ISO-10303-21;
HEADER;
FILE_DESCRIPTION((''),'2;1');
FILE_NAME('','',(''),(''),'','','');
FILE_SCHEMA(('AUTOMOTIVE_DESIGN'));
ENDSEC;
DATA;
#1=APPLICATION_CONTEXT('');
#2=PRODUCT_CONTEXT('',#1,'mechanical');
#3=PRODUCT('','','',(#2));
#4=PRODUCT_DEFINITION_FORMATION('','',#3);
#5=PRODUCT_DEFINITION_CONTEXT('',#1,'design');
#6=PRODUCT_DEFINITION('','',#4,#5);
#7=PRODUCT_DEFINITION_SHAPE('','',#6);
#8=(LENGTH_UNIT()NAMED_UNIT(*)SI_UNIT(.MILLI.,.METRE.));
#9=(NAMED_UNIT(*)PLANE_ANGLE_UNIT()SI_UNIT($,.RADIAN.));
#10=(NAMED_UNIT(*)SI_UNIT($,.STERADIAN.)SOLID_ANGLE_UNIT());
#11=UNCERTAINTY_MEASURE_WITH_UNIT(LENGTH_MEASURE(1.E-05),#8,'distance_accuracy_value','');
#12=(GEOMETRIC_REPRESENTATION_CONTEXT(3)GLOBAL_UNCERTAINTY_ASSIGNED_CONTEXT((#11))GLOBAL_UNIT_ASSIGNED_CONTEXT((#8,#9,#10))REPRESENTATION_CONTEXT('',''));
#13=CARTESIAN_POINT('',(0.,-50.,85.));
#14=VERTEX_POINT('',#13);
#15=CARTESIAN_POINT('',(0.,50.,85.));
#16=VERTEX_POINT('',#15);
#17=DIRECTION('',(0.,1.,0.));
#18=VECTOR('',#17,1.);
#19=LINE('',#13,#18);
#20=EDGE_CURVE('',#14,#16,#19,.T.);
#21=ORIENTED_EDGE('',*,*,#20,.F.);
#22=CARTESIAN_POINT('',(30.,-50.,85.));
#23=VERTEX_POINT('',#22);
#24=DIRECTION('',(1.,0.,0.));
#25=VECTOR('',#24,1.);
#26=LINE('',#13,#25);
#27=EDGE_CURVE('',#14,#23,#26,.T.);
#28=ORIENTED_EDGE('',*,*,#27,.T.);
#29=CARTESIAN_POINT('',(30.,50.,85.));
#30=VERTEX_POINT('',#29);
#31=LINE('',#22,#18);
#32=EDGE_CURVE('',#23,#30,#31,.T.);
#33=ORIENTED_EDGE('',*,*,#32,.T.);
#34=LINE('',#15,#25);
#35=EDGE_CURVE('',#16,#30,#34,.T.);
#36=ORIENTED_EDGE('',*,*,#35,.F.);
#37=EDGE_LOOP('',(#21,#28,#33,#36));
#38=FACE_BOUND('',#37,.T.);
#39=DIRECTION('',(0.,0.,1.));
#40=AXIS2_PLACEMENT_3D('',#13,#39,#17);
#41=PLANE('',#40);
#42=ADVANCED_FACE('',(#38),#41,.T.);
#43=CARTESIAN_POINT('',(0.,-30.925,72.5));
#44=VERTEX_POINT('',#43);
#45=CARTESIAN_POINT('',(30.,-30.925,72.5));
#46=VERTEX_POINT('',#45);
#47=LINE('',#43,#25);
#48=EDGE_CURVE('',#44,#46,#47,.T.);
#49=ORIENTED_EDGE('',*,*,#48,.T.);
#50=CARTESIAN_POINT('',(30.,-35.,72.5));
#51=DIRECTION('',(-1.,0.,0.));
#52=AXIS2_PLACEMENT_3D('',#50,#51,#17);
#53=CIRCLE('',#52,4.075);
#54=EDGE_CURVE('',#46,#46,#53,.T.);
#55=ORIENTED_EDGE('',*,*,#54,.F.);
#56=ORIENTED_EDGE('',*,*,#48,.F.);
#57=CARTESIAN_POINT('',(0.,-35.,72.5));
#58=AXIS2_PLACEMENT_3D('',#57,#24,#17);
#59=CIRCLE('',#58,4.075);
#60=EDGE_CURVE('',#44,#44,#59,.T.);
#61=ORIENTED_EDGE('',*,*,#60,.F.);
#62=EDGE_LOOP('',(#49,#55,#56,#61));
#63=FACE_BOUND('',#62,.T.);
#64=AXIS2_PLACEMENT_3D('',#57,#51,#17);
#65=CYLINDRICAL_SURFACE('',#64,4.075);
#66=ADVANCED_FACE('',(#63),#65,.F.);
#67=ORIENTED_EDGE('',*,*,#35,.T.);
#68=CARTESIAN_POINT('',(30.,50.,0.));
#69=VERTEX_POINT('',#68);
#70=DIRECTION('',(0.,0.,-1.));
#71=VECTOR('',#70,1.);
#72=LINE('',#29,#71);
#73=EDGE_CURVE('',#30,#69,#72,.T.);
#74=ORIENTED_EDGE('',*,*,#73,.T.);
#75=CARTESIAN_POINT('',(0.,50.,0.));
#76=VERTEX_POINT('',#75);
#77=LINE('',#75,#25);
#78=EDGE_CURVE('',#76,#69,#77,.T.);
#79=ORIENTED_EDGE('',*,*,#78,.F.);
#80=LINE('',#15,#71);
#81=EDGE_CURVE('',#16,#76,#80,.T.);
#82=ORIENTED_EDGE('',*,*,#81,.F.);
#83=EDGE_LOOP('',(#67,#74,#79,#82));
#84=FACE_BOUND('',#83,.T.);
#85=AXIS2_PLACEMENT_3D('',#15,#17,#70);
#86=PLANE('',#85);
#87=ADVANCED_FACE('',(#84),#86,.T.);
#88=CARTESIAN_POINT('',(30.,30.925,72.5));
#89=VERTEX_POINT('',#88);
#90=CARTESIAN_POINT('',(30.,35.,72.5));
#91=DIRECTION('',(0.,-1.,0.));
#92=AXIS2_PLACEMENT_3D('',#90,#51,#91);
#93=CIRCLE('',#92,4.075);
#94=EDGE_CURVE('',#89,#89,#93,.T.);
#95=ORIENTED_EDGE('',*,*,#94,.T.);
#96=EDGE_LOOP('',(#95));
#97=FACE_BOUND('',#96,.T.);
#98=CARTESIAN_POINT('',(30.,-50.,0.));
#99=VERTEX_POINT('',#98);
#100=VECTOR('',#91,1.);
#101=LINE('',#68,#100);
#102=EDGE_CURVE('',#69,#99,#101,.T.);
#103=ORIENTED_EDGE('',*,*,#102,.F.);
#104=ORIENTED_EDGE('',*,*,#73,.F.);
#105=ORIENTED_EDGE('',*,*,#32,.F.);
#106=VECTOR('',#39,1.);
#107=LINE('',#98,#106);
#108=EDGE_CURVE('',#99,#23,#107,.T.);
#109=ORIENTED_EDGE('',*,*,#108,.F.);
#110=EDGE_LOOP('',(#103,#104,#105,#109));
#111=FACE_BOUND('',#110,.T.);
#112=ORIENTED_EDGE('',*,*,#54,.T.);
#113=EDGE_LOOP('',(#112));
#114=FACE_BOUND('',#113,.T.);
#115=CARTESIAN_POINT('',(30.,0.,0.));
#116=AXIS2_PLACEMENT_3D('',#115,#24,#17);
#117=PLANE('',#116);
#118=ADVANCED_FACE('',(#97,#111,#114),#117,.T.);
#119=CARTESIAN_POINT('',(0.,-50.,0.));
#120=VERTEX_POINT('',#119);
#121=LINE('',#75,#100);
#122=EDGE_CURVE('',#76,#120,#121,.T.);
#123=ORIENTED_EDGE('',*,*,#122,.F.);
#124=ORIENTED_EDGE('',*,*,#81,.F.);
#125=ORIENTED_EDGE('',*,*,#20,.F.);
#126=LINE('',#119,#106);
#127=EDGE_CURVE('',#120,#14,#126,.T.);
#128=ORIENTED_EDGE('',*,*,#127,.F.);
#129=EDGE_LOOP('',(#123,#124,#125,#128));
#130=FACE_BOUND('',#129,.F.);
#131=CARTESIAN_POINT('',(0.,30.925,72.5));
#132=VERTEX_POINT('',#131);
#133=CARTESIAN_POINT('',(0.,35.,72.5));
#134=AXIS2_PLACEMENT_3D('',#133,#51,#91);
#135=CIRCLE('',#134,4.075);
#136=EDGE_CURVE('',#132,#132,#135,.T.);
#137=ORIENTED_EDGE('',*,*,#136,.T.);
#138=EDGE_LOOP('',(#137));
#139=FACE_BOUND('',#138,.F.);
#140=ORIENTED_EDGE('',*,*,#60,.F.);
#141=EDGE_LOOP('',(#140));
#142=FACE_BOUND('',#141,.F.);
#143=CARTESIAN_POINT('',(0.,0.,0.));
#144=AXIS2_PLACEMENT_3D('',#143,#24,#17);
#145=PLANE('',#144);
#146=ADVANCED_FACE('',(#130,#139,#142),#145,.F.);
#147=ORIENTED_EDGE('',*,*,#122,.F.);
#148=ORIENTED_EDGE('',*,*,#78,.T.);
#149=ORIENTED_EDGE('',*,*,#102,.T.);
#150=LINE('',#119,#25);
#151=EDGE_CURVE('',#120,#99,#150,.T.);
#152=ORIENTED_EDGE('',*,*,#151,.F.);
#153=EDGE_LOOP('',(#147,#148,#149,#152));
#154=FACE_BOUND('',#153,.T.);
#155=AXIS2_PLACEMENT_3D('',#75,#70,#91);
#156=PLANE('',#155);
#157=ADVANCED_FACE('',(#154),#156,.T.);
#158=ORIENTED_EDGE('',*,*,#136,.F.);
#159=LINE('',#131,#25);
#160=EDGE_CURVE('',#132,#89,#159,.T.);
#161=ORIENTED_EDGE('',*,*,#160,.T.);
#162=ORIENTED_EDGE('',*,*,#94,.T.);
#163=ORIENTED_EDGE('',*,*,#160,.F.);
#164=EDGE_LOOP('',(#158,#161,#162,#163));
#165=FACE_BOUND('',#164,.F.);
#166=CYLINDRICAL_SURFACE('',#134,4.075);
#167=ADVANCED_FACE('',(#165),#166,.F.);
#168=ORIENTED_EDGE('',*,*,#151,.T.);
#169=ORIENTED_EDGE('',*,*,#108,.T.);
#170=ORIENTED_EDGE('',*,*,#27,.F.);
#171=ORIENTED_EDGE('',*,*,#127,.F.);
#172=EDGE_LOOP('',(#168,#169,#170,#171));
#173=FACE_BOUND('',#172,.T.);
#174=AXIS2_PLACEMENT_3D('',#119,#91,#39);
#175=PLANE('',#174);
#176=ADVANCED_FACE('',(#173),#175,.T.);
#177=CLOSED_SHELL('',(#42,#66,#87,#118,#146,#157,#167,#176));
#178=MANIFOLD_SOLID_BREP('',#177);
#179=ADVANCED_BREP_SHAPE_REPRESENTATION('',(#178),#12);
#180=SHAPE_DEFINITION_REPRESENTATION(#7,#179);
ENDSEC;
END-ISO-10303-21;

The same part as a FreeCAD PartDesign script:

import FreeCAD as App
import Part
import Sketcher
from FreeCAD import Vector
Q = App.Units.Quantity

doc = App.newDocument("Part")
body = doc.addObject("PartDesign::Body", "Body")

sketch1 = body.newObject("Sketcher::SketchObject", "Sketch")
sketch1.AttachmentSupport = (doc.getObject("YZ_Plane"), [""])
sketch1.MapMode = "FlatFace"
sketch1.addGeometry([
    Part.LineSegment(Vector(50, 85, 0), Vector(-50, 85, 0)),
    Part.LineSegment(Vector(-50, 85, 0), Vector(-50, 0, 0)),
    Part.LineSegment(Vector(-50, 0, 0), Vector(50, 0, 0)),
    Part.LineSegment(Vector(50, 0, 0), Vector(50, 85, 0)),
], False)
sketch1.addConstraint([
    Sketcher.Constraint("Coincident", 0, 2, 1, 1),
    Sketcher.Constraint("Coincident", 1, 2, 2, 1),
    Sketcher.Constraint("Coincident", 2, 2, 3, 1),
    Sketcher.Constraint("Coincident", 3, 2, 0, 1),
    Sketcher.Constraint("Horizontal", 0),
    Sketcher.Constraint("Vertical", 1),
    Sketcher.Constraint("Horizontal", 2),
    Sketcher.Constraint("Vertical", 3),
    Sketcher.Constraint("Symmetric", 1, 2, 2, 2, -1, 1),
    Sketcher.Constraint("DistanceX", 0, 2, 0, 1, Q("100 mm")),
    Sketcher.Constraint("DistanceY", 1, 2, 1, 1, Q("85 mm")),
])
pad1 = body.newObject("PartDesign::Pad", "Pad")
pad1.Profile = sketch1
pad1.Length = 30

sketch2 = body.newObject("Sketcher::SketchObject", "Sketch001")
sketch2.AttachmentSupport = (doc.getObject("YZ_Plane"), [""])
sketch2.MapMode = "FlatFace"
sketch2.addGeometry(Part.Circle(Vector(35, 72.5, 0), Vector(0, 0, 1), 4.1), False)
sketch2.addConstraint([
    Sketcher.Constraint("Diameter", 0, Q("8.15 mm")),
    Sketcher.Constraint("DistanceX", -1, 1, 0, 3, Q("35 mm")),
    Sketcher.Constraint("DistanceY", -1, 1, 0, 3, Q("72.5 mm")),
])
pocket1 = body.newObject("PartDesign::Pocket", "Pocket")
pocket1.Profile = sketch2
pocket1.Length = 40
pocket1.Reversed = True
doc.recompute()

mirrored = body.newObject("PartDesign::Mirrored", "Mirrored")
mirrored.Originals = [pocket1]
mirrored.MirrorPlane = (doc.getObject("XZ_Plane"), [""])
body.Tip = mirrored

doc.recompute()
